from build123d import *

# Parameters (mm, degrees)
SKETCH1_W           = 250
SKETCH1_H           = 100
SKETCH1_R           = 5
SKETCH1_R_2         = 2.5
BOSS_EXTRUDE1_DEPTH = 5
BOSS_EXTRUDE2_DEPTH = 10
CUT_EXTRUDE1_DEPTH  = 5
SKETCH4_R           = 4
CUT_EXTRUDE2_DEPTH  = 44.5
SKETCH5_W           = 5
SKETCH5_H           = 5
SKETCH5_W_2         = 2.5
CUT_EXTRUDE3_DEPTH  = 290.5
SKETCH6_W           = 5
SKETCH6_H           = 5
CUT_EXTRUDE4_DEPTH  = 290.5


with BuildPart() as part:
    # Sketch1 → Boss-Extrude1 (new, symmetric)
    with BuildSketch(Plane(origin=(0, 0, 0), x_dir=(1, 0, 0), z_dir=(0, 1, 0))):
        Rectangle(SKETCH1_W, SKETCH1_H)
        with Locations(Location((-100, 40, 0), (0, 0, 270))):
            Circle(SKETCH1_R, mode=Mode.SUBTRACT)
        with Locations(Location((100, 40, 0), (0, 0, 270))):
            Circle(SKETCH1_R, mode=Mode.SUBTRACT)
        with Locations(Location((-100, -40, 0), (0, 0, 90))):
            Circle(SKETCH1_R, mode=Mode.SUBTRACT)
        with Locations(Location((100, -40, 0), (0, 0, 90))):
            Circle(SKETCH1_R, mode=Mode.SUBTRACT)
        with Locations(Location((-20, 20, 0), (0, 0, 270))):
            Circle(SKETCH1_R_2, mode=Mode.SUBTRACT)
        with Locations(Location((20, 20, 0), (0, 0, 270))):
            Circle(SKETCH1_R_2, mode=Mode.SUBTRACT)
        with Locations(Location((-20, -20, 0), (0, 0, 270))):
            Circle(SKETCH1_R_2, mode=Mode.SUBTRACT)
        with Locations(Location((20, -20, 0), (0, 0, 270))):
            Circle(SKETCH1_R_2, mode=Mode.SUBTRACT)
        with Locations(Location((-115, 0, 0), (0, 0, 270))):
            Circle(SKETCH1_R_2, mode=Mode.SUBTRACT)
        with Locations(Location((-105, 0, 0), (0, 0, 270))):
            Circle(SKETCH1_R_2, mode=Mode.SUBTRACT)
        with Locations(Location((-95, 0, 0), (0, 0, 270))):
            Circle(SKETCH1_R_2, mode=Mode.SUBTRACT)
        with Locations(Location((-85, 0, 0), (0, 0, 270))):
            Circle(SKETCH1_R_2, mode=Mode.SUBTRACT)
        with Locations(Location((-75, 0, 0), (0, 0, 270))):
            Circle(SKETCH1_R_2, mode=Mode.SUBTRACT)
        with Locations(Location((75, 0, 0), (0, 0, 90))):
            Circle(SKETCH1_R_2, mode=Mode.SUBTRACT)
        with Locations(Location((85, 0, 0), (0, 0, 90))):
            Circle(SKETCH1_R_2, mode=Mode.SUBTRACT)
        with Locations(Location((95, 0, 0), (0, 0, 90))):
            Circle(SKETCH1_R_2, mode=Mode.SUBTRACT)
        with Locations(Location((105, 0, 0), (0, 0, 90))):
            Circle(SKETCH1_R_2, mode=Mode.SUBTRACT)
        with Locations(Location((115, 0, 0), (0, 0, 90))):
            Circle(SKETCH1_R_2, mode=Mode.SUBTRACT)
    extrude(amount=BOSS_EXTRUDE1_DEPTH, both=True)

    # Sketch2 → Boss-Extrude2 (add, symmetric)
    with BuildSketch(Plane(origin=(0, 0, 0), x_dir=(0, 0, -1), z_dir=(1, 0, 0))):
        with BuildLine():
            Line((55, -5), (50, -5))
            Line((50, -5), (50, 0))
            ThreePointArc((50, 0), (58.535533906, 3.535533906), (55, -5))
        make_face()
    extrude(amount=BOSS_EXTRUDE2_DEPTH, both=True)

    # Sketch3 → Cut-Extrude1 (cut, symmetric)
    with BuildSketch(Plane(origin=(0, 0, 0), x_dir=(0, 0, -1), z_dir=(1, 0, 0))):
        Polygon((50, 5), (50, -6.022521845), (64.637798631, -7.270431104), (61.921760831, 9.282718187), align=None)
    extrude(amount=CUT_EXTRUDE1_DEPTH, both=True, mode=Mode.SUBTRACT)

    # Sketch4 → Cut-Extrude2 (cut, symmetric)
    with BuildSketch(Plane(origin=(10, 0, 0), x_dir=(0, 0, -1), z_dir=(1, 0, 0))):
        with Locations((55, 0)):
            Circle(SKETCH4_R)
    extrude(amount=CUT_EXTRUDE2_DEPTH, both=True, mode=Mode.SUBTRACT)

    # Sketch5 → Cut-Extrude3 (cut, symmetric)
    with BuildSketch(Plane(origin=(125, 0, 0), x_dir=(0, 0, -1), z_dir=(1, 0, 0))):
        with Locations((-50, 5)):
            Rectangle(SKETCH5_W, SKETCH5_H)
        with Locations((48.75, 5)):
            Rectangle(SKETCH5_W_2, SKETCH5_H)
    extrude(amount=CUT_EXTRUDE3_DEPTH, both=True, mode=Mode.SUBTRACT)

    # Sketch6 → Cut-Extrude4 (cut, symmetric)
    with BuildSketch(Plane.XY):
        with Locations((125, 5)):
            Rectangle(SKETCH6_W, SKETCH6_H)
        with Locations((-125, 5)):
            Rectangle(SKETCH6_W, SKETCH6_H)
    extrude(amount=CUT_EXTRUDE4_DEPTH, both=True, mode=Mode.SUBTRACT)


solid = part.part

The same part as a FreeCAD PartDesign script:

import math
import FreeCAD as App
import Part
import Sketcher

V = App.Vector
Q = App.Units.Quantity

doc = App.newDocument("Part")
body = doc.addObject("PartDesign::Body", "Body")

sketch1 = body.newObject("Sketcher::SketchObject", "Sketch")
sketch1.AttachmentSupport = (doc.getObject("XZ_Plane"), [""])
sketch1.MapMode = "FlatFace"
sketch1.addGeometry([
    Part.LineSegment(V(-125, -50, 0), V(-125, 50, 0)),
    Part.LineSegment(V(-125, 50, 0), V(125, 50, 0)),
    Part.LineSegment(V(125, 50, 0), V(125, -50, 0)),
    Part.LineSegment(V(125, -50, 0), V(-125, -50, 0)),
    Part.Circle(V(-100, 40, 0), V(0, 0, 1), 5),
    Part.Circle(V(-20, 20, 0), V(0, 0, 1), 2.5),
    Part.Circle(V(100, 40, 0), V(0, 0, 1), 5),
    Part.Circle(V(20, 20, 0), V(0, 0, 1), 2.5),
    Part.Circle(V(-115, 0, 0), V(0, 0, 1), 2.5),
    Part.Circle(V(-105, 0, 0), V(0, 0, 1), 2.5),
    Part.Circle(V(-95, 0, 0), V(0, 0, 1), 2.5),
    Part.Circle(V(-85, 0, 0), V(0, 0, 1), 2.5),
    Part.Circle(V(-75, 0, 0), V(0, 0, 1), 2.5),
    Part.Circle(V(-20, -20, 0), V(0, 0, 1), 2.5),
    Part.Circle(V(-100, -40, 0), V(0, 0, 1), 5),
    Part.Circle(V(20, -20, 0), V(0, 0, 1), 2.5),
    Part.Circle(V(75, 0, 0), V(0, 0, 1), 2.5),
    Part.Circle(V(85, 0, 0), V(0, 0, 1), 2.5),
    Part.Circle(V(95, 0, 0), V(0, 0, 1), 2.5),
    Part.Circle(V(105, 0, 0), V(0, 0, 1), 2.5),
    Part.Circle(V(115, 0, 0), V(0, 0, 1), 2.5),
    Part.Circle(V(100, -40, 0), V(0, 0, 1), 5),
], False)
sketch1.addConstraint([
    Sketcher.Constraint("Coincident", 0, 2, 1, 1),
    Sketcher.Constraint("Coincident", 1, 2, 2, 1),
    Sketcher.Constraint("Coincident", 2, 2, 3, 1),
    Sketcher.Constraint("Coincident", 3, 2, 0, 1),
    Sketcher.Constraint("Vertical", 0),
    Sketcher.Constraint("Horizontal", 1),
    Sketcher.Constraint("Vertical", 2),
    Sketcher.Constraint("Horizontal", 3),
    Sketcher.Constraint("Equal", 4, 6),
    Sketcher.Constraint("Equal", 5, 7),
    Sketcher.Constraint("Equal", 7, 8),
    Sketcher.Constraint("Equal", 8, 9),
    Sketcher.Constraint("Equal", 9, 10),
    Sketcher.Constraint("Equal", 10, 11),
    Sketcher.Constraint("Equal", 11, 12),
    Sketcher.Constraint("Equal", 12, 13),
    Sketcher.Constraint("Equal", 6, 14),
    Sketcher.Constraint("Equal", 13, 15),
    Sketcher.Constraint("Equal", 15, 16),
    Sketcher.Constraint("Equal", 16, 17),
    Sketcher.Constraint("Equal", 17, 18),
    Sketcher.Constraint("Equal", 18, 19),
    Sketcher.Constraint("Equal", 19, 20),
    Sketcher.Constraint("Equal", 14, 21),
    Sketcher.Constraint("Symmetric", 7, 3, 13, 3, -1, 1),
    Sketcher.Constraint("Symmetric", 6, 3, 14, 3, -1, 1),
    Sketcher.Constraint("Symmetric", 5, 3, 15, 3, -1, 1),
    Sketcher.Constraint("Symmetric", 12, 3, 16, 3, -1, 1),
    Sketcher.Constraint("Symmetric", 11, 3, 17, 3, -1, 1),
    Sketcher.Constraint("Symmetric", 10, 3, 18, 3, -1, 1),
    Sketcher.Constraint("Symmetric", 9, 3, 19, 3, -1, 1),
    Sketcher.Constraint("Symmetric", 8, 3, 20, 3, -1, 1),
    Sketcher.Constraint("Symmetric", 4, 3, 21, 3, -1, 1),
    Sketcher.Constraint("Symmetric", 0, 2, 2, 2, -1, 1),
    Sketcher.Constraint("Symmetric", 4, 3, 6, 3, -2),
    Sketcher.Constraint("Symmetric", 5, 3, 7, 3, -2),
    Sketcher.Constraint("PointOnObject", 8, 3, -1),
    Sketcher.Constraint("PointOnObject", 9, 3, -1),
    Sketcher.Constraint("PointOnObject", 10, 3, -1),
    Sketcher.Constraint("PointOnObject", 11, 3, -1),
    Sketcher.Constraint("PointOnObject", 12, 3, -1),
    Sketcher.Constraint("Diameter", 4, Q("10 mm")),
    Sketcher.Constraint("Diameter", 5, Q("5 mm")),
    Sketcher.Constraint("DistanceX", 1, 1, 1, 2, Q("250 mm")),
    Sketcher.Constraint("DistanceY", 0, 1, 0, 2, Q("100 mm")),
    Sketcher.Constraint("DistanceX", 4, 3, -1, 1, Q("100 mm")),
    Sketcher.Constraint("DistanceY", -1, 1, 4, 3, Q("40 mm")),
    Sketcher.Constraint("DistanceX", 5, 3, -1, 1, Q("20 mm")),
    Sketcher.Constraint("DistanceY", -1, 1, 5, 3, Q("20 mm")),
    Sketcher.Constraint("DistanceX", 8, 3, -1, 1, Q("115 mm")),
    Sketcher.Constraint("DistanceX", 9, 3, -1, 1, Q("105 mm")),
    Sketcher.Constraint("DistanceX", 10, 3, -1, 1, Q("95 mm")),
    Sketcher.Constraint("DistanceX", 11, 3, -1, 1, Q("85 mm")),
    Sketcher.Constraint("DistanceX", 12, 3, -1, 1, Q("75 mm")),
])
pad1 = body.newObject("PartDesign::Pad", "Pad")
pad1.Profile = sketch1
pad1.Length = 10
pad1.Midplane = True

sketch2 = body.newObject("Sketcher::SketchObject", "Sketch001")
sketch2.AttachmentSupport = (doc.getObject("YZ_Plane"), [""])
sketch2.MapMode = "FlatFace"
sketch2.addGeometry([
    Part.LineSegment(V(-5, -50, 0), V(-5, -55, 0)),
    Part.ArcOfCircle(Part.Circle(V(0, -55, 0), V(0, 0, 1), 5), math.radians(180), math.radians(450)),
    Part.LineSegment(V(0, -50, 0), V(-5, -50, 0)),
], False)
sketch2.addConstraint([
    Sketcher.Constraint("Tangent", 0, 2, 1, 1),
    Sketcher.Constraint("Tangent", 1, 2, 2, 1),
    Sketcher.Constraint("Coincident", 2, 2, 0, 1),
    Sketcher.Constraint("Vertical", 0),
    Sketcher.Constraint("Horizontal", 2),
    Sketcher.Constraint("PointOnObject", 1, 3, -2),
    Sketcher.Constraint("Radius", 1, Q("5 mm")),
    Sketcher.Constraint("DistanceY", 1, 3, -1, 1, Q("55 mm")),
])
pad2 = body.newObject("PartDesign::Pad", "Pad001")
pad2.Profile = sketch2
pad2.Length = 20
pad2.Midplane = True

sketch3 = body.newObject("Sketcher::SketchObject", "Sketch002")
sketch3.AttachmentSupport = (doc.getObject("YZ_Plane"), [""])
sketch3.MapMode = "FlatFace"
sketch3.addGeometry([
    Part.LineSegment(V(5, -50, 0), V(-6.022522, -50, 0)),
    Part.LineSegment(V(-6.022522, -50, 0), V(-7.270431, -64.637799, 0)),
    Part.LineSegment(V(-7.270431, -64.637799, 0), V(9.282718, -61.921761, 0)),
    Part.LineSegment(V(9.282718, -61.921761, 0), V(5, -50, 0)),
], False)
sketch3.addConstraint([
    Sketcher.Constraint("Coincident", 0, 2, 1, 1),
    Sketcher.Constraint("Coincident", 1, 2, 2, 1),
    Sketcher.Constraint("Coincident", 2, 2, 3, 1),
    Sketcher.Constraint("Coincident", 3, 2, 0, 1),
    Sketcher.Constraint("Horizontal", 0),
    Sketcher.Constraint("DistanceY", 0, 2, -1, 1, Q("50 mm")),
    Sketcher.Constraint("DistanceX", -1, 1, 3, 2, Q("5 mm")),
    Sketcher.Constraint("DistanceX", 0, 2, 0, 1, Q("11.022522 mm")),
    Sketcher.Constraint("DistanceY", 1, 2, -1, 1, Q("64.637799 mm")),
    Sketcher.Constraint("DistanceX", 1, 2, -1, 1, Q("7.270431 mm")),
    Sketcher.Constraint("DistanceX", -1, 1, 2, 2, Q("9.282718 mm")),
    Sketcher.Constraint("DistanceY", 2, 2, -1, 1, Q("61.921761 mm")),
])
pocket1 = body.newObject("PartDesign::Pocket", "Pocket")
pocket1.Profile = sketch3
pocket1.Length = 10
pocket1.Midplane = True

sketch4 = body.newObject("Sketcher::SketchObject", "Sketch003")
sketch4.AttachmentSupport = (doc.getObject("YZ_Plane"), [""])
sketch4.MapMode = "FlatFace"
sketch4.AttachmentOffset = App.Placement(V(0, 0, 10), App.Rotation())
sketch4.addGeometry(Part.Circle(V(0, -55, 0), V(0, 0, 1), 4), False)
sketch4.addConstraint([
    Sketcher.Constraint("PointOnObject", 0, 3, -2),
    Sketcher.Constraint("Diameter", 0, Q("8 mm")),
    Sketcher.Constraint("DistanceY", 0, 3, -1, 1, Q("55 mm")),
])
pocket2 = body.newObject("PartDesign::Pocket", "Pocket001")
pocket2.Profile = sketch4
pocket2.Length = 89
pocket2.Midplane = True

sketch5 = body.newObject("Sketcher::SketchObject", "Sketch004")
sketch5.AttachmentSupport = (doc.getObject("YZ_Plane"), [""])
sketch5.MapMode = "FlatFace"
sketch5.AttachmentOffset = App.Placement(V(0, 0, 125), App.Rotation())
sketch5.addGeometry([
    Part.LineSegment(V(7.5, 52.5, 0), V(2.5, 52.5, 0)),
    Part.LineSegment(V(2.5, 52.5, 0), V(2.5, 47.5, 0)),
    Part.LineSegment(V(2.5, 47.5, 0), V(7.5, 47.5, 0)),
    Part.LineSegment(V(7.5, 47.5, 0), V(7.5, 52.5, 0)),
    Part.LineSegment(V(7.5, -47.5, 0), V(2.5, -47.5, 0)),
    Part.LineSegment(V(2.5, -47.5, 0), V(2.5, -50, 0)),
    Part.LineSegment(V(2.5, -50, 0), V(7.5, -50, 0)),
    Part.LineSegment(V(7.5, -50, 0), V(7.5, -47.5, 0)),
], False)
sketch5.addConstraint([
    Sketcher.Constraint("Coincident", 0, 2, 1, 1),
    Sketcher.Constraint("Coincident", 1, 2, 2, 1),
    Sketcher.Constraint("Coincident", 2, 2, 3, 1),
    Sketcher.Constraint("Coincident", 3, 2, 0, 1),
    Sketcher.Constraint("Coincident", 4, 2, 5, 1),
    Sketcher.Constraint("Coincident", 5, 2, 6, 1),
    Sketcher.Constraint("Coincident", 6, 2, 7, 1),
    Sketcher.Constraint("Coincident", 7, 2, 4, 1),
    Sketcher.Constraint("Horizontal", 0),
    Sketcher.Constraint("Vertical", 1),
    Sketcher.Constraint("Horizontal", 2),
    Sketcher.Constraint("Vertical", 3),
    Sketcher.Constraint("Horizontal", 4),
    Sketcher.Constraint("Vertical", 5),
    Sketcher.Constraint("Horizontal", 6),
    Sketcher.Constraint("Vertical", 7),
    Sketcher.Constraint("Symmetric", 1, 2, 4, 2, -1),
    Sketcher.Constraint("Vertical", 3, 2, 6, 2),
    Sketcher.Constraint("Equal", 6, 1),
    Sketcher.Constraint("DistanceX", 0, 2, 0, 1, Q("5 mm")),
    Sketcher.Constraint("DistanceY", 5, 2, 5, 1, Q("2.5 mm")),
    Sketcher.Constraint("DistanceY", 5, 2, -1, 1, Q("50 mm")),
    Sketcher.Constraint("DistanceX", -1, 1, 0, 2, Q("2.5 mm")),
])
pocket3 = body.newObject("PartDesign::Pocket", "Pocket002")
pocket3.Profile = sketch5
pocket3.Length = 581
pocket3.Midplane = True

sketch6 = body.newObject("Sketcher::SketchObject", "Sketch005")
sketch6.AttachmentSupport = (doc.getObject("XY_Plane"), [""])
sketch6.MapMode = "FlatFace"
sketch6.addGeometry([
    Part.LineSegment(V(122.5, 7.5, 0), V(122.5, 2.5, 0)),
    Part.LineSegment(V(122.5, 2.5, 0), V(127.5, 2.5, 0)),
    Part.LineSegment(V(127.5, 2.5, 0), V(127.5, 7.5, 0)),
    Part.LineSegment(V(127.5, 7.5, 0), V(122.5, 7.5, 0)),
    Part.LineSegment(V(-127.5, 7.5, 0), V(-127.5, 2.5, 0)),
    Part.LineSegment(V(-127.5, 2.5, 0), V(-122.5, 2.5, 0)),
    Part.LineSegment(V(-122.5, 2.5, 0), V(-122.5, 7.5, 0)),
    Part.LineSegment(V(-122.5, 7.5, 0), V(-127.5, 7.5, 0)),
], False)
sketch6.addConstraint([
    Sketcher.Constraint("Coincident", 0, 2, 1, 1),
    Sketcher.Constraint("Coincident", 1, 2, 2, 1),
    Sketcher.Constraint("Coincident", 2, 2, 3, 1),
    Sketcher.Constraint("Coincident", 3, 2, 0, 1),
    Sketcher.Constraint("Coincident", 4, 2, 5, 1),
    Sketcher.Constraint("Coincident", 5, 2, 6, 1),
    Sketcher.Constraint("Coincident", 6, 2, 7, 1),
    Sketcher.Constraint("Coincident", 7, 2, 4, 1),
    Sketcher.Constraint("Vertical", 0),
    Sketcher.Constraint("Horizontal", 1),
    Sketcher.Constraint("Vertical", 2),
    Sketcher.Constraint("Horizontal", 3),
    Sketcher.Constraint("Vertical", 4),
    Sketcher.Constraint("Horizontal", 5),
    Sketcher.Constraint("Vertical", 6),
    Sketcher.Constraint("Horizontal", 7),
    Sketcher.Constraint("Symmetric", 1, 2, 4, 2, -2),
    Sketcher.Constraint("Symmetric", 3, 2, 6, 2, -2),
    Sketcher.Constraint("Equal", 7, 0),
    Sketcher.Constraint("DistanceX", 1, 1, 1, 2, Q("5 mm")),
    Sketcher.Constraint("DistanceX", 4, 2, 0, 2, Q("250 mm")),
    Sketcher.Constraint("DistanceY", -1, 1, 0, 2, Q("2.5 mm")),
])
pocket4 = body.newObject("PartDesign::Pocket", "Pocket003")
pocket4.Profile = sketch6
pocket4.Length = 581
pocket4.Midplane = True

doc.recompute()
